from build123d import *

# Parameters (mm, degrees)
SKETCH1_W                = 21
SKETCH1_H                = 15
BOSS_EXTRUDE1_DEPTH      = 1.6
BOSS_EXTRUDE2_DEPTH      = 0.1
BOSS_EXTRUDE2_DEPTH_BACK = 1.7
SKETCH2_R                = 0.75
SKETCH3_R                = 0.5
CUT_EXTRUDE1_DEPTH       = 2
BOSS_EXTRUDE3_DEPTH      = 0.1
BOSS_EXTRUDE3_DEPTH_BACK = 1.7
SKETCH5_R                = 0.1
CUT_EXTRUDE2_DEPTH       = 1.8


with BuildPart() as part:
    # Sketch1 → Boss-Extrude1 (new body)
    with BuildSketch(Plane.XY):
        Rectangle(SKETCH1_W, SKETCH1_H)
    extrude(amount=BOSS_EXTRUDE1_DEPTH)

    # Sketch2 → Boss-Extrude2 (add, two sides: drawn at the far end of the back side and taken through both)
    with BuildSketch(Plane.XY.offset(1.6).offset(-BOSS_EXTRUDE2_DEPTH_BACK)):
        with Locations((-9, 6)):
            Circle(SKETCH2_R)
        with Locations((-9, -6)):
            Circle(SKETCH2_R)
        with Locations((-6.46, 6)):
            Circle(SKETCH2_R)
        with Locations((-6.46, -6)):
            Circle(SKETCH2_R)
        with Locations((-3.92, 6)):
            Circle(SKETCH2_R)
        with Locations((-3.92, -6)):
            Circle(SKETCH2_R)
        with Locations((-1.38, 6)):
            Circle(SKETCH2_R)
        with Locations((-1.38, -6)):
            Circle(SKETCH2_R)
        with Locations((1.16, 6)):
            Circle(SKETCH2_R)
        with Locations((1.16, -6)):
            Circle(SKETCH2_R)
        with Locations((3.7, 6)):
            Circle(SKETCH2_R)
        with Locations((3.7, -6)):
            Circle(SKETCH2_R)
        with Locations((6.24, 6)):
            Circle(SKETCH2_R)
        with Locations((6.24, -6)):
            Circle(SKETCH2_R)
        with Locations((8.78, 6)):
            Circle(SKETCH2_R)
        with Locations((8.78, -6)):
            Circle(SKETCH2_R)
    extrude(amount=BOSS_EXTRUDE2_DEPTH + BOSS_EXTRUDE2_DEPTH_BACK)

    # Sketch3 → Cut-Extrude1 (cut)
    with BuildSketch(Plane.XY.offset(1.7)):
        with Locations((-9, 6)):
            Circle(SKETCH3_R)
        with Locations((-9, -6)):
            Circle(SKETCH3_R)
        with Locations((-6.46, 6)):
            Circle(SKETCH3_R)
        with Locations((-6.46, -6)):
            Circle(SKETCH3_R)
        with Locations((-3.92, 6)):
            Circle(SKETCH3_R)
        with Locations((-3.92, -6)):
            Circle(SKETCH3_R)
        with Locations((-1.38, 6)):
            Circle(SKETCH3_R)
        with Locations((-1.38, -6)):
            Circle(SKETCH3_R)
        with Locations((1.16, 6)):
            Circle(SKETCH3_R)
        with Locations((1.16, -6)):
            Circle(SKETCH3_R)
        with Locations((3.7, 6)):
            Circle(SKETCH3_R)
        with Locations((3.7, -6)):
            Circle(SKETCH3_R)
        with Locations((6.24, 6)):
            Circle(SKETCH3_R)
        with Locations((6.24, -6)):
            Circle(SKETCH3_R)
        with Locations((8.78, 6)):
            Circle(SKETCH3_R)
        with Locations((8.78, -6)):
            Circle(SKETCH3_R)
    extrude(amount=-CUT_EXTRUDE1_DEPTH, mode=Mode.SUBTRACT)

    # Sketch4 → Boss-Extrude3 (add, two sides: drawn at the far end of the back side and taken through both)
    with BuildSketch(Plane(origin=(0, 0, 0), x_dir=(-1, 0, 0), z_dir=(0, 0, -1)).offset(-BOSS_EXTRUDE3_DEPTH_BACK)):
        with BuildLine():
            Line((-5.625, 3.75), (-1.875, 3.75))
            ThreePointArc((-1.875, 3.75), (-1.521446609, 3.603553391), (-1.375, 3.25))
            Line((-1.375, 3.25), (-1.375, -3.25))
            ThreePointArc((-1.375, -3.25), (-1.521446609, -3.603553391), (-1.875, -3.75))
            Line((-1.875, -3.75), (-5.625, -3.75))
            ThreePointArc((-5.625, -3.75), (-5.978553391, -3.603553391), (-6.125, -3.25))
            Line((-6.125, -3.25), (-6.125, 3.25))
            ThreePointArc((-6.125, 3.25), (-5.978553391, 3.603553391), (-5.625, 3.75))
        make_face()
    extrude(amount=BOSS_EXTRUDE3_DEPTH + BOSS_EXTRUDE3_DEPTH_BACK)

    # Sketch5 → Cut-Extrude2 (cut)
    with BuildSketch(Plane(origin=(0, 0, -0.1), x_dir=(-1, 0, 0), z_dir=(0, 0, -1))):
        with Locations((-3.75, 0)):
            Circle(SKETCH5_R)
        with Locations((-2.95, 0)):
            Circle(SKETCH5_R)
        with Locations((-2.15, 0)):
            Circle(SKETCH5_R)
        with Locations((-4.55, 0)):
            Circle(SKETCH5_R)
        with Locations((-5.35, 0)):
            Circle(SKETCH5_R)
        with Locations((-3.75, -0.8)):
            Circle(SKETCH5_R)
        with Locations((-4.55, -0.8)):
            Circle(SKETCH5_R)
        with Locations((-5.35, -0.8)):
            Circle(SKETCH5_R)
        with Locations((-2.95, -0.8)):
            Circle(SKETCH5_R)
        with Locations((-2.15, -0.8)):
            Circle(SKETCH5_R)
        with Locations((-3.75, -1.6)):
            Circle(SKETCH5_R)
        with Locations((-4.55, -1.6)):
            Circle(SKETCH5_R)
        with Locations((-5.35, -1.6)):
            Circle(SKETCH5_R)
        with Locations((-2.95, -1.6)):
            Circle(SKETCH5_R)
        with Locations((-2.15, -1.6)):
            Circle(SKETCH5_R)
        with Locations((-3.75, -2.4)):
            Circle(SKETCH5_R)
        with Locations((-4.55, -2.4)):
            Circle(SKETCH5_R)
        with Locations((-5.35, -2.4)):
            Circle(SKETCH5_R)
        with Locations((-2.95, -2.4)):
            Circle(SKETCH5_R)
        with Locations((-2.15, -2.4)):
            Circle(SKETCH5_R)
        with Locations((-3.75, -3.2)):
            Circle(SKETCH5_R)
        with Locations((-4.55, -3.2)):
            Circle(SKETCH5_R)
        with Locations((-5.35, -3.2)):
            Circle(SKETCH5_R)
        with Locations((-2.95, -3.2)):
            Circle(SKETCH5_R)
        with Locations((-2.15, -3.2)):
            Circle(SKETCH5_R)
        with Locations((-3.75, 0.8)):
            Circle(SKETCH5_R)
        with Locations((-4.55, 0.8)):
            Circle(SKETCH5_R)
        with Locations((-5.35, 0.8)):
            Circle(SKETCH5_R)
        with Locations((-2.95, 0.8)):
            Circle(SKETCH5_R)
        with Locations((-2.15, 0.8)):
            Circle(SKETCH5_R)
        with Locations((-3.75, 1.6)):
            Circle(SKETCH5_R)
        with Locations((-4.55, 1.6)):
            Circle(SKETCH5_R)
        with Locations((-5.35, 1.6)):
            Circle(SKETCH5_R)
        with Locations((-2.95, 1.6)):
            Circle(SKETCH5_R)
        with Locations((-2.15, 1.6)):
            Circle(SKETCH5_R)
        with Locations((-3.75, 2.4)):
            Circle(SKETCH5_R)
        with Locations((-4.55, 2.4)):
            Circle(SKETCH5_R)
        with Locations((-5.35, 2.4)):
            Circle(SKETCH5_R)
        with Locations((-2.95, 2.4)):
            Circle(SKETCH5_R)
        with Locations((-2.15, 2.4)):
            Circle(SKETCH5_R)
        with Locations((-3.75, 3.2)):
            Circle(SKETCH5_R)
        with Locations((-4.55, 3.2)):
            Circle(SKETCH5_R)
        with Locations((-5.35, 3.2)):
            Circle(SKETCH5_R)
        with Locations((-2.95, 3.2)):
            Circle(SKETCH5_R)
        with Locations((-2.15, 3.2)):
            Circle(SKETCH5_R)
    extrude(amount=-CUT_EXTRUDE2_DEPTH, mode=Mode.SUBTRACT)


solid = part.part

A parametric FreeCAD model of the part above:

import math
import FreeCAD as App
import Part
import Sketcher

V = App.Vector


def add_polygon(sketch, points):
    """Adds a closed chain of lines whose ends are joined by coincident constraints."""
    first, n = sketch.GeometryCount, len(points)
    for a, b in zip(points, points[1:] + points[:1]):
        sketch.addGeometry(Part.LineSegment(App.Vector(*a, 0), App.Vector(*b, 0)), False)
    for i in range(n):
        sketch.addConstraint(Sketcher.Constraint("Coincident", first + i, 2, first + (i + 1) % n, 1))

doc = App.newDocument("Part")
body = doc.addObject("PartDesign::Body", "Body")

# Sketch on XY plane
sketch1 = body.newObject("Sketcher::SketchObject", "Sketch")
sketch1.AttachmentSupport = (doc.getObject("XY_Plane"), [""])
sketch1.MapMode = "FlatFace"
add_polygon(sketch1, [(-10, 8), (-10, -8), (10, -8), (10, 8)])  # lines 0-3
sketch1.addConstraint(Sketcher.Constraint("Vertical", 0))
sketch1.addConstraint(Sketcher.Constraint("Horizontal", 1))
sketch1.addConstraint(Sketcher.Constraint("Vertical", 2))
sketch1.addConstraint(Sketcher.Constraint("Horizontal", 3))
sketch1.addConstraint(Sketcher.Constraint("Symmetric", 0, 2, 2, 2, -1, 1))
sketch1.addConstraint(Sketcher.Constraint("DistanceX", 1, 1, 1, 2, 21.0))
sketch1.addConstraint(Sketcher.Constraint("DistanceY", 0, 2, 0, 1, 15.0))
pad1 = body.newObject("PartDesign::Pad", "Pad")
pad1.Profile = sketch1
pad1.Length = 1.6

# Sketch on XY plane
sketch2 = body.newObject("Sketcher::SketchObject", "Sketch001")
sketch2.AttachmentSupport = (doc.getObject("XY_Plane"), [""])
sketch2.MapMode = "FlatFace"
sketch2.AttachmentOffset = App.Placement(V(0, 0, 1.6), App.Rotation())
sketch2.addGeometry(Part.Circle(V(-9, 6, 0), V(0, 0, 1), 0.8), False)
sketch2.addGeometry(Part.Circle(V(-9, -6, 0), V(0, 0, 1), 0.8), False)
sketch2.addGeometry(Part.Circle(V(-6.5, 6, 0), V(0, 0, 1), 0.8), False)
sketch2.addGeometry(Part.Circle(V(-6.5, -6, 0), V(0, 0, 1), 0.8), False)
sketch2.addGeometry(Part.Circle(V(-3.9, 6, 0), V(0, 0, 1), 0.8), False)
sketch2.addGeometry(Part.Circle(V(-3.9, -6, 0), V(0, 0, 1), 0.8), False)
sketch2.addGeometry(Part.Circle(V(-1.4, 6, 0), V(0, 0, 1), 0.8), False)
sketch2.addGeometry(Part.Circle(V(-1.4, -6, 0), V(0, 0, 1), 0.8), False)
sketch2.addGeometry(Part.Circle(V(1.2, 6, 0), V(0, 0, 1), 0.8), False)
sketch2.addGeometry(Part.Circle(V(1.2, -6, 0), V(0, 0, 1), 0.8), False)
sketch2.addGeometry(Part.Circle(V(3.7, 6, 0), V(0, 0, 1), 0.8), False)
sketch2.addGeometry(Part.Circle(V(3.7, -6, 0), V(0, 0, 1), 0.8), False)
sketch2.addGeometry(Part.Circle(V(6.2, 6, 0), V(0, 0, 1), 0.8), False)
sketch2.addGeometry(Part.Circle(V(6.2, -6, 0), V(0, 0, 1), 0.8), False)
sketch2.addGeometry(Part.Circle(V(8.8, 6, 0), V(0, 0, 1), 0.8), False)
sketch2.addGeometry(Part.Circle(V(8.8, -6, 0), V(0, 0, 1), 0.8), False)
sketch2.addConstraint(Sketcher.Constraint("Equal", 0, 1))
sketch2.addConstraint(Sketcher.Constraint("Equal", 1, 2))
sketch2.addConstraint(Sketcher.Constraint("Equal", 2, 3))
sketch2.addConstraint(Sketcher.Constraint("Equal", 3, 4))
sketch2.addConstraint(Sketcher.Constraint("Equal", 4, 5))
sketch2.addConstraint(Sketcher.Constraint("Equal", 5, 6))
sketch2.addConstraint(Sketcher.Constraint("Equal", 6, 7))
sketch2.addConstraint(Sketcher.Constraint("Equal", 7, 8))
sketch2.addConstraint(Sketcher.Constraint("Equal", 8, 9))
sketch2.addConstraint(Sketcher.Constraint("Equal", 9, 10))
sketch2.addConstraint(Sketcher.Constraint("Equal", 10, 11))
sketch2.addConstraint(Sketcher.Constraint("Equal", 11, 12))
sketch2.addConstraint(Sketcher.Constraint("Equal", 12, 13))
sketch2.addConstraint(Sketcher.Constraint("Equal", 13, 14))
sketch2.addConstraint(Sketcher.Constraint("Equal", 14, 15))
sketch2.addConstraint(Sketcher.Constraint("Symmetric", 0, 3, 1, 3, -1))
sketch2.addConstraint(Sketcher.Constraint("Symmetric", 2, 3, 3, 3, -1))
sketch2.addConstraint(Sketcher.Constraint("Symmetric", 4, 3, 5, 3, -1))
sketch2.addConstraint(Sketcher.Constraint("Symmetric", 6, 3, 7, 3, -1))
sketch2.addConstraint(Sketcher.Constraint("Symmetric", 8, 3, 9, 3, -1))
sketch2.addConstraint(Sketcher.Constraint("Symmetric", 10, 3, 11, 3, -1))
sketch2.addConstraint(Sketcher.Constraint("Symmetric", 12, 3, 13, 3, -1))
sketch2.addConstraint(Sketcher.Constraint("Symmetric", 14, 3, 15, 3, -1))
sketch2.addConstraint(Sketcher.Constraint("Horizontal", 0, 3, 2, 3))
sketch2.addConstraint(Sketcher.Constraint("Horizontal", 2, 3, 4, 3))
sketch2.addConstraint(Sketcher.Constraint("Horizontal", 4, 3, 6, 3))
sketch2.addConstraint(Sketcher.Constraint("Horizontal", 6, 3, 8, 3))
sketch2.addConstraint(Sketcher.Constraint("Horizontal", 8, 3, 10, 3))
sketch2.addConstraint(Sketcher.Constraint("Horizontal", 10, 3, 12, 3))
sketch2.addConstraint(Sketcher.Constraint("Horizontal", 12, 3, 14, 3))
sketch2.addConstraint(Sketcher.Constraint("Diameter", 0, 1.5))
sketch2.addConstraint(Sketcher.Constraint("DistanceX", 0, 3, -1, 1, 9.0))
sketch2.addConstraint(Sketcher.Constraint("DistanceY", -1, 1, 0, 3, 6.0))
sketch2.addConstraint(Sketcher.Constraint("DistanceX", -1, 1, 10, 3, 3.7))
sketch2.addConstraint(Sketcher.Constraint("DistanceX", 2, 3, -1, 1, 6.46))
sketch2.addConstraint(Sketcher.Constraint("DistanceX", 4, 3, -1, 1, 3.92))
sketch2.addConstraint(Sketcher.Constraint("DistanceX", 6, 3, -1, 1, 1.38))
sketch2.addConstraint(Sketcher.Constraint("DistanceX", -1, 1, 8, 3, 1.16))
sketch2.addConstraint(Sketcher.Constraint("DistanceX", -1, 1, 12, 3, 6.24))
sketch2.addConstraint(Sketcher.Constraint("DistanceX", -1, 1, 14, 3, 8.78))
pad2 = body.newObject("PartDesign::Pad", "Pad001")
pad2.Profile = sketch2
pad2.Type = "TwoLengths"
pad2.Length = 0.1
pad2.Length2 = 1.7

# Sketch on XY plane
sketch3 = body.newObject("Sketcher::SketchObject", "Sketch002")
sketch3.AttachmentSupport = (doc.getObject("XY_Plane"), [""])
sketch3.MapMode = "FlatFace"
sketch3.AttachmentOffset = App.Placement(V(0, 0, 1.7), App.Rotation())
sketch3.addGeometry(Part.Circle(V(-9, 6, 0), V(0, 0, 1), 0.5), False)
sketch3.addGeometry(Part.Circle(V(-9, -6, 0), V(0, 0, 1), 0.5), False)
sketch3.addGeometry(Part.Circle(V(-6.5, 6, 0), V(0, 0, 1), 0.5), False)
sketch3.addGeometry(Part.Circle(V(-6.5, -6, 0), V(0, 0, 1), 0.5), False)
sketch3.addGeometry(Part.Circle(V(-3.9, 6, 0), V(0, 0, 1), 0.5), False)
sketch3.addGeometry(Part.Circle(V(-3.9, -6, 0), V(0, 0, 1), 0.5), False)
sketch3.addGeometry(Part.Circle(V(-1.4, 6, 0), V(0, 0, 1), 0.5), False)
sketch3.addGeometry(Part.Circle(V(-1.4, -6, 0), V(0, 0, 1), 0.5), False)
sketch3.addGeometry(Part.Circle(V(1.2, 6, 0), V(0, 0, 1), 0.5), False)
sketch3.addGeometry(Part.Circle(V(1.2, -6, 0), V(0, 0, 1), 0.5), False)
sketch3.addGeometry(Part.Circle(V(3.7, 6, 0), V(0, 0, 1), 0.5), False)
sketch3.addGeometry(Part.Circle(V(3.7, -6, 0), V(0, 0, 1), 0.5), False)
sketch3.addGeometry(Part.Circle(V(6.2, 6, 0), V(0, 0, 1), 0.5), False)
sketch3.addGeometry(Part.Circle(V(6.2, -6, 0), V(0, 0, 1), 0.5), False)
sketch3.addGeometry(Part.Circle(V(8.8, 6, 0), V(0, 0, 1), 0.5), False)
sketch3.addGeometry(Part.Circle(V(8.8, -6, 0), V(0, 0, 1), 0.5), False)
sketch3.addConstraint(Sketcher.Constraint("Equal", 0, 1))
sketch3.addConstraint(Sketcher.Constraint("Equal", 1, 2))
sketch3.addConstraint(Sketcher.Constraint("Equal", 2, 3))
sketch3.addConstraint(Sketcher.Constraint("Equal", 3, 4))
sketch3.addConstraint(Sketcher.Constraint("Equal", 4, 5))
sketch3.addConstraint(Sketcher.Constraint("Equal", 5, 6))
sketch3.addConstraint(Sketcher.Constraint("Equal", 6, 7))
sketch3.addConstraint(Sketcher.Constraint("Equal", 7, 8))
sketch3.addConstraint(Sketcher.Constraint("Equal", 8, 9))
sketch3.addConstraint(Sketcher.Constraint("Equal", 9, 10))
sketch3.addConstraint(Sketcher.Constraint("Equal", 10, 11))
sketch3.addConstraint(Sketcher.Constraint("Equal", 11, 12))
sketch3.addConstraint(Sketcher.Constraint("Equal", 12, 13))
sketch3.addConstraint(Sketcher.Constraint("Equal", 13, 14))
sketch3.addConstraint(Sketcher.Constraint("Equal", 14, 15))
sketch3.addConstraint(Sketcher.Constraint("Symmetric", 0, 3, 1, 3, -1))
sketch3.addConstraint(Sketcher.Constraint("Symmetric", 2, 3, 3, 3, -1))
sketch3.addConstraint(Sketcher.Constraint("Symmetric", 4, 3, 5, 3, -1))
sketch3.addConstraint(Sketcher.Constraint("Symmetric", 6, 3, 7, 3, -1))
sketch3.addConstraint(Sketcher.Constraint("Symmetric", 8, 3, 9, 3, -1))
sketch3.addConstraint(Sketcher.Constraint("Symmetric", 10, 3, 11, 3, -1))
sketch3.addConstraint(Sketcher.Constraint("Symmetric", 12, 3, 13, 3, -1))
sketch3.addConstraint(Sketcher.Constraint("Symmetric", 14, 3, 15, 3, -1))
sketch3.addConstraint(Sketcher.Constraint("Horizontal", 0, 3, 2, 3))
sketch3.addConstraint(Sketcher.Constraint("Horizontal", 2, 3, 4, 3))
sketch3.addConstraint(Sketcher.Constraint("Horizontal", 4, 3, 6, 3))
sketch3.addConstraint(Sketcher.Constraint("Horizontal", 6, 3, 8, 3))
sketch3.addConstraint(Sketcher.Constraint("Horizontal", 8, 3, 10, 3))
sketch3.addConstraint(Sketcher.Constraint("Horizontal", 10, 3, 12, 3))
sketch3.addConstraint(Sketcher.Constraint("Horizontal", 12, 3, 14, 3))
sketch3.addConstraint(Sketcher.Constraint("Diameter", 0, 1.0))
sketch3.addConstraint(Sketcher.Constraint("DistanceX", 0, 3, -1, 1, 9.0))
sketch3.addConstraint(Sketcher.Constraint("DistanceY", -1, 1, 0, 3, 6.0))
sketch3.addConstraint(Sketcher.Constraint("DistanceX", -1, 1, 10, 3, 3.7))
sketch3.addConstraint(Sketcher.Constraint("DistanceX", 2, 3, -1, 1, 6.46))
sketch3.addConstraint(Sketcher.Constraint("DistanceX", 4, 3, -1, 1, 3.92))
sketch3.addConstraint(Sketcher.Constraint("DistanceX", 6, 3, -1, 1, 1.38))
sketch3.addConstraint(Sketcher.Constraint("DistanceX", -1, 1, 8, 3, 1.16))
sketch3.addConstraint(Sketcher.Constraint("DistanceX", -1, 1, 12, 3, 6.24))
sketch3.addConstraint(Sketcher.Constraint("DistanceX", -1, 1, 14, 3, 8.78))
pocket1 = body.newObject("PartDesign::Pocket", "Pocket")
pocket1.Profile = sketch3
pocket1.Length = 2

# Sketch on XY plane
sketch4 = body.newObject("Sketcher::SketchObject", "Sketch003")
sketch4.AttachmentSupport = (doc.getObject("XY_Plane"), [""])
sketch4.MapMode = "FlatFace"
sketch4.addGeometry(Part.LineSegment(V(1.88, 3.75, 0), V(5.62, 3.75, 0)), False)
sketch4.addGeometry(Part.ArcOfCircle(Part.Circle(V(5.63, 3.25, 0), V(0, 0, 1), 0.5), math.radians(0), math.radians(90)), False)
sketch4.addGeometry(Part.LineSegment(V(6.12, 3.25, 0), V(6.12, -3.25, 0)), False)
sketch4.addGeometry(Part.ArcOfCircle(Part.Circle(V(5.63, -3.25, 0), V(0, 0, 1), 0.5), math.radians(-90), math.radians(0)), False)
sketch4.addGeometry(Part.LineSegment(V(5.62, -3.75, 0), V(1.88, -3.75, 0)), False)
sketch4.addGeometry(Part.ArcOfCircle(Part.Circle(V(1.87, -3.25, 0), V(0, 0, 1), 0.5), math.radians(180), math.radians(270)), False)
sketch4.addGeometry(Part.LineSegment(V(1.38, -3.25, 0), V(1.38, 3.25, 0)), False)
sketch4.addGeometry(Part.ArcOfCircle(Part.Circle(V(1.87, 3.25, 0), V(0, 0, 1), 0.5), math.radians(90), math.radians(180)), False)
sketch4.addConstraint(Sketcher.Constraint("Tangent", 0, 2, 1, 2))
sketch4.addConstraint(Sketcher.Constraint("Tangent", 1, 1, 2, 1))
sketch4.addConstraint(Sketcher.Constraint("Tangent", 2, 2, 3, 2))
sketch4.addConstraint(Sketcher.Constraint("Tangent", 3, 1, 4, 1))
sketch4.addConstraint(Sketcher.Constraint("Tangent", 4, 2, 5, 2))
sketch4.addConstraint(Sketcher.Constraint("Tangent", 5, 1, 6, 1))
sketch4.addConstraint(Sketcher.Constraint("Tangent", 6, 2, 7, 2))
sketch4.addConstraint(Sketcher.Constraint("Tangent", 7, 1, 0, 1))
sketch4.addConstraint(Sketcher.Constraint("Horizontal", 0))
sketch4.addConstraint(Sketcher.Constraint("Vertical", 2))
sketch4.addConstraint(Sketcher.Constraint("Horizontal", 4))
sketch4.addConstraint(Sketcher.Constraint("Vertical", 6))
sketch4.addConstraint(Sketcher.Constraint("Equal", 1, 3))
sketch4.addConstraint(Sketcher.Constraint("Equal", 3, 5))
sketch4.addConstraint(Sketcher.Constraint("Equal", 5, 7))
sketch4.addConstraint(Sketcher.Constraint("Radius", 1, 0.5))
sketch4.addConstraint(Sketcher.Constraint("DistanceY", 2, 2, 2, 1, 6.5))
sketch4.addConstraint(Sketcher.Constraint("DistanceX", 0, 1, 0, 2, 3.75))
sketch4.addConstraint(Sketcher.Constraint("DistanceY", -1, 1, 1, 3, 3.25))
sketch4.addConstraint(Sketcher.Constraint("DistanceX", -1, 1, 1, 3, 5.625))
pad3 = body.newObject("PartDesign::Pad", "Pad002")
pad3.Profile = sketch4
pad3.Type = "TwoLengths"
pad3.Length = 0.1
pad3.Length2 = 1.7
pad3.Reversed = True

# Sketch on XY plane
sketch5 = body.newObject("Sketcher::SketchObject", "Sketch004")
sketch5.AttachmentSupport = (doc.getObject("XY_Plane"), [""])
sketch5.MapMode = "FlatFace"
sketch5.AttachmentOffset = App.Placement(V(0, 0, -0.1), App.Rotation())
sketch5.addGeometry(Part.Circle(V(3.75, 0, 0), V(0, 0, 1), 0.1), False)
sketch5.addGeometry(Part.Circle(V(2.95, 0, 0), V(0, 0, 1), 0.1), False)
sketch5.addGeometry(Part.Circle(V(2.15, 0, 0), V(0, 0, 1), 0.1), False)
sketch5.addGeometry(Part.Circle(V(4.55, 0, 0), V(0, 0, 1), 0.1), False)
sketch5.addGeometry(Part.Circle(V(5.35, 0, 0), V(0, 0, 1), 0.1), False)
sketch5.addGeometry(Part.Circle(V(3.75, -0.8, 0), V(0, 0, 1), 0.1), False)
sketch5.addGeometry(Part.Circle(V(4.55, -0.8, 0), V(0, 0, 1), 0.1), False)
sketch5.addGeometry(Part.Circle(V(5.35, -0.8, 0), V(0, 0, 1), 0.1), False)
sketch5.addGeometry(Part.Circle(V(2.95, -0.8, 0), V(0, 0, 1), 0.1), False)
sketch5.addGeometry(Part.Circle(V(2.15, -0.8, 0), V(0, 0, 1), 0.1), False)
sketch5.addGeometry(Part.Circle(V(3.75, -1.6, 0), V(0, 0, 1), 0.1), False)
sketch5.addGeometry(Part.Circle(V(4.55, -1.6, 0), V(0, 0, 1), 0.1), False)
sketch5.addGeometry(Part.Circle(V(5.35, -1.6, 0), V(0, 0, 1), 0.1), False)
sketch5.addGeometry(Part.Circle(V(2.95, -1.6, 0), V(0, 0, 1), 0.1), False)
sketch5.addGeometry(Part.Circle(V(2.15, -1.6, 0), V(0, 0, 1), 0.1), False)
sketch5.addGeometry(Part.Circle(V(3.75, -2.4, 0), V(0, 0, 1), 0.1), False)
sketch5.addGeometry(Part.Circle(V(4.55, -2.4, 0), V(0, 0, 1), 0.1), False)
sketch5.addGeometry(Part.Circle(V(5.35, -2.4, 0), V(0, 0, 1), 0.1), False)
sketch5.addGeometry(Part.Circle(V(2.95, -2.4, 0), V(0, 0, 1), 0.1), False)
sketch5.addGeometry(Part.Circle(V(2.15, -2.4, 0), V(0, 0, 1), 0.1), False)
sketch5.addGeometry(Part.Circle(V(3.75, -3.2, 0), V(0, 0, 1), 0.1), False)
sketch5.addGeometry(Part.Circle(V(4.55, -3.2, 0), V(0, 0, 1), 0.1), False)
sketch5.addGeometry(Part.Circle(V(5.35, -3.2, 0), V(0, 0, 1), 0.1), False)
sketch5.addGeometry(Part.Circle(V(2.95, -3.2, 0), V(0, 0, 1), 0.1), False)
sketch5.addGeometry(Part.Circle(V(2.15, -3.2, 0), V(0, 0, 1), 0.1), False)
sketch5.addGeometry(Part.Circle(V(3.75, 0.8, 0), V(0, 0, 1), 0.1), False)
sketch5.addGeometry(Part.Circle(V(4.55, 0.8, 0), V(0, 0, 1), 0.1), False)
sketch5.addGeometry(Part.Circle(V(5.35, 0.8, 0), V(0, 0, 1), 0.1), False)
sketch5.addGeometry(Part.Circle(V(2.95, 0.8, 0), V(0, 0, 1), 0.1), False)
sketch5.addGeometry(Part.Circle(V(2.15, 0.8, 0), V(0, 0, 1), 0.1), False)
sketch5.addGeometry(Part.Circle(V(3.75, 1.6, 0), V(0, 0, 1), 0.1), False)
sketch5.addGeometry(Part.Circle(V(4.55, 1.6, 0), V(0, 0, 1), 0.1), False)
sketch5.addGeometry(Part.Circle(V(5.35, 1.6, 0), V(0, 0, 1), 0.1), False)
sketch5.addGeometry(Part.Circle(V(2.95, 1.6, 0), V(0, 0, 1), 0.1), False)
sketch5.addGeometry(Part.Circle(V(2.15, 1.6, 0), V(0, 0, 1), 0.1), False)
sketch5.addGeometry(Part.Circle(V(3.75, 2.4, 0), V(0, 0, 1), 0.1), False)
sketch5.addGeometry(Part.Circle(V(4.55, 2.4, 0), V(0, 0, 1), 0.1), False)
sketch5.addGeometry(Part.Circle(V(5.35, 2.4, 0), V(0, 0, 1), 0.1), False)
sketch5.addGeometry(Part.Circle(V(2.95, 2.4, 0), V(0, 0, 1), 0.1), False)
sketch5.addGeometry(Part.Circle(V(2.15, 2.4, 0), V(0, 0, 1), 0.1), False)
sketch5.addGeometry(Part.Circle(V(3.75, 3.2, 0), V(0, 0, 1), 0.1), False)
sketch5.addGeometry(Part.Circle(V(4.55, 3.2, 0), V(0, 0, 1), 0.1), False)
sketch5.addGeometry(Part.Circle(V(5.35, 3.2, 0), V(0, 0, 1), 0.1), False)
sketch5.addGeometry(Part.Circle(V(2.95, 3.2, 0), V(0, 0, 1), 0.1), False)
sketch5.addGeometry(Part.Circle(V(2.15, 3.2, 0), V(0, 0, 1), 0.1), False)
sketch5.addConstraint(Sketcher.Constraint("Equal", 0, 1))
sketch5.addConstraint(Sketcher.Constraint("Equal", 1, 2))
sketch5.addConstraint(Sketcher.Constraint("Equal", 2, 3))
sketch5.addConstraint(Sketcher.Constraint("Equal", 3, 4))
sketch5.addConstraint(Sketcher.Constraint("Equal", 4, 5))
sketch5.addConstraint(Sketcher.Constraint("Equal", 5, 6))
sketch5.addConstraint(Sketcher.Constraint("Equal", 6, 7))
sketch5.addConstraint(Sketcher.Constraint("Equal", 7, 8))
sketch5.addConstraint(Sketcher.Constraint("Equal", 8, 9))
sketch5.addConstraint(Sketcher.Constraint("Equal", 9, 10))
sketch5.addConstraint(Sketcher.Constraint("Equal", 10, 11))
sketch5.addConstraint(Sketcher.Constraint("Equal", 11, 12))
sketch5.addConstraint(Sketcher.Constraint("Equal", 12, 13))
sketch5.addConstraint(Sketcher.Constraint("Equal", 13, 14))
sketch5.addConstraint(Sketcher.Constraint("Equal", 14, 15))
sketch5.addConstraint(Sketcher.Constraint("Equal", 15, 16))
sketch5.addConstraint(Sketcher.Constraint("Equal", 16, 17))
sketch5.addConstraint(Sketcher.Constraint("Equal", 17, 18))
sketch5.addConstraint(Sketcher.Constraint("Equal", 18, 19))
sketch5.addConstraint(Sketcher.Constraint("Equal", 19, 20))
sketch5.addConstraint(Sketcher.Constraint("Equal", 20, 21))
sketch5.addConstraint(Sketcher.Constraint("Equal", 21, 22))
sketch5.addConstraint(Sketcher.Constraint("Equal", 22, 23))
sketch5.addConstraint(Sketcher.Constraint("Equal", 23, 24))
sketch5.addConstraint(Sketcher.Constraint("Equal", 24, 25))
sketch5.addConstraint(Sketcher.Constraint("Equal", 25, 26))
sketch5.addConstraint(Sketcher.Constraint("Equal", 26, 27))
sketch5.addConstraint(Sketcher.Constraint("Equal", 27, 28))
sketch5.addConstraint(Sketcher.Constraint("Equal", 28, 29))
sketch5.addConstraint(Sketcher.Constraint("Equal", 29, 30))
sketch5.addConstraint(Sketcher.Constraint("Equal", 30, 31))
sketch5.addConstraint(Sketcher.Constraint("Equal", 31, 32))
sketch5.addConstraint(Sketcher.Constraint("Equal", 32, 33))
sketch5.addConstraint(Sketcher.Constraint("Equal", 33, 34))
sketch5.addConstraint(Sketcher.Constraint("Equal", 34, 35))
sketch5.addConstraint(Sketcher.Constraint("Equal", 35, 36))
sketch5.addConstraint(Sketcher.Constraint("Equal", 36, 37))
sketch5.addConstraint(Sketcher.Constraint("Equal", 37, 38))
sketch5.addConstraint(Sketcher.Constraint("Equal", 38, 39))
sketch5.addConstraint(Sketcher.Constraint("Equal", 39, 40))
sketch5.addConstraint(Sketcher.Constraint("Equal", 40, 41))
sketch5.addConstraint(Sketcher.Constraint("Equal", 41, 42))
sketch5.addConstraint(Sketcher.Constraint("Equal", 42, 43))
sketch5.addConstraint(Sketcher.Constraint("Equal", 43, 44))
sketch5.addConstraint(Sketcher.Constraint("Symmetric", 5, 3, 25, 3, -1))
sketch5.addConstraint(Sketcher.Constraint("Symmetric", 6, 3, 26, 3, -1))
sketch5.addConstraint(Sketcher.Constraint("Symmetric", 7, 3, 27, 3, -1))
sketch5.addConstraint(Sketcher.Constraint("Symmetric", 8, 3, 28, 3, -1))
sketch5.addConstraint(Sketcher.Constraint("Symmetric", 9, 3, 29, 3, -1))
sketch5.addConstraint(Sketcher.Constraint("Symmetric", 10, 3, 30, 3, -1))
sketch5.addConstraint(Sketcher.Constraint("Symmetric", 11, 3, 31, 3, -1))
sketch5.addConstraint(Sketcher.Constraint("Symmetric", 12, 3, 32, 3, -1))
sketch5.addConstraint(Sketcher.Constraint("Symmetric", 13, 3, 33, 3, -1))
sketch5.addConstraint(Sketcher.Constraint("Symmetric", 14, 3, 34, 3, -1))
sketch5.addConstraint(Sketcher.Constraint("Symmetric", 15, 3, 35, 3, -1))
sketch5.addConstraint(Sketcher.Constraint("Symmetric", 16, 3, 36, 3, -1))
sketch5.addConstraint(Sketcher.Constraint("Symmetric", 17, 3, 37, 3, -1))
sketch5.addConstraint(Sketcher.Constraint("Symmetric", 18, 3, 38, 3, -1))
sketch5.addConstraint(Sketcher.Constraint("Symmetric", 19, 3, 39, 3, -1))
sketch5.addConstraint(Sketcher.Constraint("Symmetric", 20, 3, 40, 3, -1))
sketch5.addConstraint(Sketcher.Constraint("Symmetric", 21, 3, 41, 3, -1))
sketch5.addConstraint(Sketcher.Constraint("Symmetric", 22, 3, 42, 3, -1))
sketch5.addConstraint(Sketcher.Constraint("Symmetric", 23, 3, 43, 3, -1))
sketch5.addConstraint(Sketcher.Constraint("Symmetric", 24, 3, 44, 3, -1))
sketch5.addConstraint(Sketcher.Constraint("PointOnObject", 0, 3, -1))
sketch5.addConstraint(Sketcher.Constraint("PointOnObject", 1, 3, -1))
sketch5.addConstraint(Sketcher.Constraint("PointOnObject", 2, 3, -1))
sketch5.addConstraint(Sketcher.Constraint("PointOnObject", 3, 3, -1))
sketch5.addConstraint(Sketcher.Constraint("PointOnObject", 4, 3, -1))
sketch5.addConstraint(Sketcher.Constraint("Horizontal", 5, 3, 6, 3))
sketch5.addConstraint(Sketcher.Constraint("Horizontal", 6, 3, 7, 3))
sketch5.addConstraint(Sketcher.Constraint("Horizontal", 7, 3, 8, 3))
sketch5.addConstraint(Sketcher.Constraint("Horizontal", 8, 3, 9, 3))
sketch5.addConstraint(Sketcher.Constraint("Horizontal", 10, 3, 11, 3))
sketch5.addConstraint(Sketcher.Constraint("Horizontal", 11, 3, 12, 3))
sketch5.addConstraint(Sketcher.Constraint("Horizontal", 12, 3, 13, 3))
sketch5.addConstraint(Sketcher.Constraint("Horizontal", 13, 3, 14, 3))
sketch5.addConstraint(Sketcher.Constraint("Horizontal", 15, 3, 16, 3))
sketch5.addConstraint(Sketcher.Constraint("Horizontal", 16, 3, 17, 3))
sketch5.addConstraint(Sketcher.Constraint("Horizontal", 17, 3, 18, 3))
sketch5.addConstraint(Sketcher.Constraint("Horizontal", 18, 3, 19, 3))
sketch5.addConstraint(Sketcher.Constraint("Horizontal", 20, 3, 21, 3))
sketch5.addConstraint(Sketcher.Constraint("Horizontal", 21, 3, 22, 3))
sketch5.addConstraint(Sketcher.Constraint("Horizontal", 22, 3, 23, 3))
sketch5.addConstraint(Sketcher.Constraint("Horizontal", 23, 3, 24, 3))
sketch5.addConstraint(Sketcher.Constraint("Vertical", 0, 3, 5, 3))
sketch5.addConstraint(Sketcher.Constraint("Vertical", 3, 3, 6, 3))
sketch5.addConstraint(Sketcher.Constraint("Vertical", 4, 3, 7, 3))
sketch5.addConstraint(Sketcher.Constraint("Vertical", 1, 3, 8, 3))
sketch5.addConstraint(Sketcher.Constraint("Vertical", 2, 3, 9, 3))
sketch5.addConstraint(Sketcher.Constraint("Vertical", 5, 3, 10, 3))
sketch5.addConstraint(Sketcher.Constraint("Vertical", 6, 3, 11, 3))
sketch5.addConstraint(Sketcher.Constraint("Vertical", 7, 3, 12, 3))
sketch5.addConstraint(Sketcher.Constraint("Vertical", 8, 3, 13, 3))
sketch5.addConstraint(Sketcher.Constraint("Vertical", 9, 3, 14, 3))
sketch5.addConstraint(Sketcher.Constraint("Vertical", 10, 3, 15, 3))
sketch5.addConstraint(Sketcher.Constraint("Vertical", 11, 3, 16, 3))
sketch5.addConstraint(Sketcher.Constraint("Vertical", 12, 3, 17, 3))
sketch5.addConstraint(Sketcher.Constraint("Vertical", 13, 3, 18, 3))
sketch5.addConstraint(Sketcher.Constraint("Vertical", 14, 3, 19, 3))
sketch5.addConstraint(Sketcher.Constraint("Vertical", 15, 3, 20, 3))
sketch5.addConstraint(Sketcher.Constraint("Vertical", 16, 3, 21, 3))
sketch5.addConstraint(Sketcher.Constraint("Vertical", 17, 3, 22, 3))
sketch5.addConstraint(Sketcher.Constraint("Vertical", 18, 3, 23, 3))
sketch5.addConstraint(Sketcher.Constraint("Vertical", 19, 3, 24, 3))
sketch5.addConstraint(Sketcher.Constraint("Diameter", 0, 0.2))
sketch5.addConstraint(Sketcher.Constraint("DistanceY", 5, 3, -1, 1, 0.8))
sketch5.addConstraint(Sketcher.Constraint("DistanceY", 10, 3, -1, 1, 1.6))
sketch5.addConstraint(Sketcher.Constraint("DistanceY", 15, 3, -1, 1, 2.4))
sketch5.addConstraint(Sketcher.Constraint("DistanceY", 20, 3, -1, 1, 3.2))
sketch5.addConstraint(Sketcher.Constraint("DistanceX", 1, 3, 0, 3, 0.8))
sketch5.addConstraint(Sketcher.Constraint("DistanceX", 2, 3, 1, 3, 0.8))
sketch5.addConstraint(Sketcher.Constraint("DistanceX", 0, 3, 3, 3, 0.8))
sketch5.addConstraint(Sketcher.Constraint("DistanceX", 3, 3, 4, 3, 0.8))
sketch5.addConstraint(Sketcher.Constraint("DistanceX", -1, 1, 0, 3, 3.75))
pocket2 = body.newObject("PartDesign::Pocket", "Pocket001")
pocket2.Profile = sketch5
pocket2.Length = 1.8
pocket2.Reversed = True

doc.recompute()
